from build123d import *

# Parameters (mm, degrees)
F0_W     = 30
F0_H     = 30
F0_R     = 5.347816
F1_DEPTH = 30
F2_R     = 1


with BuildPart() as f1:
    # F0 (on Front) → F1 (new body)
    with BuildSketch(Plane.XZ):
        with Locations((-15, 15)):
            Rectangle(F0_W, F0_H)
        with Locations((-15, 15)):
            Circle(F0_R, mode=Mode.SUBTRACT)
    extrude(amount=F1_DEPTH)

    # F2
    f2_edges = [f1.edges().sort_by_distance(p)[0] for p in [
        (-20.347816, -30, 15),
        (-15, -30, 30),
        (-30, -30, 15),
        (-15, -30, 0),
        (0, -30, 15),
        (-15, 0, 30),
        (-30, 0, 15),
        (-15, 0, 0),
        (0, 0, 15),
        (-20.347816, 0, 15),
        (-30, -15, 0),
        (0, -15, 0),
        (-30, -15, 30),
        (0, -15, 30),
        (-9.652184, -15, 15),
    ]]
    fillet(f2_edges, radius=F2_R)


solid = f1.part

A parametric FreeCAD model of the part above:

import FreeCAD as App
import Part
import Sketcher
from FreeCAD import Vector


def add_polygon(sketch, points):
    """Adds a closed chain of lines whose ends are joined by coincident constraints."""
    first, n = sketch.GeometryCount, len(points)
    for a, b in zip(points, points[1:] + points[:1]):
        sketch.addGeometry(Part.LineSegment(App.Vector(*a, 0), App.Vector(*b, 0)), False)
    for i in range(n):
        sketch.addConstraint(Sketcher.Constraint("Coincident", first + i, 2, first + (i + 1) % n, 1))

doc = App.newDocument("Part")
body = doc.addObject("PartDesign::Body", "Body")

# Sketch on XZ plane
sketch1 = body.newObject("Sketcher::SketchObject", "Sketch")
sketch1.AttachmentSupport = (doc.getObject("XZ_Plane"), [""])
sketch1.MapMode = "FlatFace"
add_polygon(sketch1, [(-30, 30), (-30, 0), (0, 0), (0, 30)])  # lines 0-3
sketch1.addGeometry(Part.Circle(Vector(-15, 15, 0), Vector(0, 0, 1), 5), False)  # 4
sketch1.addConstraint([
    Sketcher.Constraint("Vertical", 0),
    Sketcher.Constraint("Horizontal", 1),
    Sketcher.Constraint("Vertical", 2),
    Sketcher.Constraint("Horizontal", 3),
    Sketcher.Constraint("Coincident", 1, 2, -1, 1),
    Sketcher.Constraint("Equal", 3, 0),
    Sketcher.Constraint("DistanceX", 1, 1, 1, 2, 30.0),
    Sketcher.Constraint("DistanceX", 4, 3, -1, 1, 15.0),
    Sketcher.Constraint("DistanceY", -1, 1, 4, 3, 15.0),
    Sketcher.Constraint("Diameter", 4, 10.695632),
])
pad1 = body.newObject("PartDesign::Pad", "Pad")
pad1.Profile = sketch1
pad1.Length = 30
doc.recompute()

fillet = body.newObject("PartDesign::Fillet", "Fillet")
fillet.Base = (pad1, ["Edge1"])
fillet.UseAllEdges = True
fillet.Radius = 1

doc.recompute()
